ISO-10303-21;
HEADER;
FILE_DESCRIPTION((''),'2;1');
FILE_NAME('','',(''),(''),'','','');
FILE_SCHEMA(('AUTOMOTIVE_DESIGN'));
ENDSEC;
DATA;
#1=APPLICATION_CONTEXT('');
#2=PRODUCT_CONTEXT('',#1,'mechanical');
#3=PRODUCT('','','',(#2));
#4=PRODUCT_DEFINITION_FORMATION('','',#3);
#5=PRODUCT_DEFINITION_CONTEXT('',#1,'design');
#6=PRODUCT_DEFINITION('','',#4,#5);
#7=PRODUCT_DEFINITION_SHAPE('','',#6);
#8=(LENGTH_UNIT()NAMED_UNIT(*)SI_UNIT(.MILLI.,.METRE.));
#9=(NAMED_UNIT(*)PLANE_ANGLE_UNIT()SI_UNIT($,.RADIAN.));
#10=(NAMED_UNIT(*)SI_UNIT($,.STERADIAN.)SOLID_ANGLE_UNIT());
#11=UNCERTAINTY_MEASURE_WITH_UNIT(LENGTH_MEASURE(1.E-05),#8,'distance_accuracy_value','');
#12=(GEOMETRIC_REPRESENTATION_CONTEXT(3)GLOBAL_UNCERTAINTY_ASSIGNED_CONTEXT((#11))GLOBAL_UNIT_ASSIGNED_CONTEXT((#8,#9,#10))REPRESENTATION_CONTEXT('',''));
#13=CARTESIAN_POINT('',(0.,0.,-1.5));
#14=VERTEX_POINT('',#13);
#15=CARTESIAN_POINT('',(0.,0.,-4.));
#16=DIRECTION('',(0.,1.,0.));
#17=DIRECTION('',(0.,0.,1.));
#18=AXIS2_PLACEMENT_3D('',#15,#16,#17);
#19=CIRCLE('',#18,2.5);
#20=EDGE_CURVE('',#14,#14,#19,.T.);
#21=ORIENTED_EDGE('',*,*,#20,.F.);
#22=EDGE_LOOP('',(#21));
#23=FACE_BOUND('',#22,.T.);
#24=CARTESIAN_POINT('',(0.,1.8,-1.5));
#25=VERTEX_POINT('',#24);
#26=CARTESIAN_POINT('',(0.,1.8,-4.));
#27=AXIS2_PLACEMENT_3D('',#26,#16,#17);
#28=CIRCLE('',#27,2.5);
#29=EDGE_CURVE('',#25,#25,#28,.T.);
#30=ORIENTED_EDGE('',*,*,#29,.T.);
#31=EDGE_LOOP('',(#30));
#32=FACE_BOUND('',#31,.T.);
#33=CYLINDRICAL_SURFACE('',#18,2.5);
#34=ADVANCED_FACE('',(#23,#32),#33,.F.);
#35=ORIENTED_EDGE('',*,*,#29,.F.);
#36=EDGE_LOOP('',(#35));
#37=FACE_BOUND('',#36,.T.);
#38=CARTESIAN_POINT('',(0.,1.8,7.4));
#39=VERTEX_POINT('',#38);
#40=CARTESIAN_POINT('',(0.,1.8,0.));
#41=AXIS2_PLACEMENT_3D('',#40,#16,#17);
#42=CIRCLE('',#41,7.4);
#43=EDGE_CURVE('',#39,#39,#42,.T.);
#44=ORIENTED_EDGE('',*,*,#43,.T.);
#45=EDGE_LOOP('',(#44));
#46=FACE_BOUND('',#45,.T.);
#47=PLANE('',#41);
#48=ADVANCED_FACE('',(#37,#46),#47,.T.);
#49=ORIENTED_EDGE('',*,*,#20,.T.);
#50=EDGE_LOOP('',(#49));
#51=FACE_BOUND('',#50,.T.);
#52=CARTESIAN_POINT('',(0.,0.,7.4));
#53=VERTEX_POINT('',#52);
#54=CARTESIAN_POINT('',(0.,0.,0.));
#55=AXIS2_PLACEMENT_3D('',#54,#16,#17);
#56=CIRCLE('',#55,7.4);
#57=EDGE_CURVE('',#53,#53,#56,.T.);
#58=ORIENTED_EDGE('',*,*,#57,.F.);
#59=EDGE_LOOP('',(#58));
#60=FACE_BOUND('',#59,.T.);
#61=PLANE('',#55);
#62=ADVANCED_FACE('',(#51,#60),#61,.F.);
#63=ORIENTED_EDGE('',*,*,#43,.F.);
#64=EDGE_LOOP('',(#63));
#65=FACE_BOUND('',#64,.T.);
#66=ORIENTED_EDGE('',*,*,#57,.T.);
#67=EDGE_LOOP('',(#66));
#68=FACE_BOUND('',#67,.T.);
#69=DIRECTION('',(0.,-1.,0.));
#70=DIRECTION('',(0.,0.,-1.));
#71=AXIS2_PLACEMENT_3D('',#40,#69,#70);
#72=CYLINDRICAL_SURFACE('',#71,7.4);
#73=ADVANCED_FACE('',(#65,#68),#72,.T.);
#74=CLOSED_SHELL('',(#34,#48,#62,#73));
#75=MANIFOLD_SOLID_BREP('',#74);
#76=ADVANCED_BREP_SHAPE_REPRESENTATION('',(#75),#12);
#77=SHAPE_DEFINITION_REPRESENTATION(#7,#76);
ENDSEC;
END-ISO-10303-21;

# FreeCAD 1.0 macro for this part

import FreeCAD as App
import Part
import Sketcher
from FreeCAD import Vector
Q = App.Units.Quantity

doc = App.newDocument("Part")
params = doc.addObject("Spreadsheet::Sheet", "Params")
for row, (alias, value) in enumerate([
    ("sketch1_diameter", "14.8 mm"),
    ("pad1_length", "1.8 mm"),
    ("sketch2_diameter", "5 mm"),
    ("pocket1_length", "1.8 mm"),
], start=1):
    params.set(f"A{row}", alias)
    params.set(f"B{row}", "=" + value)
    params.setAlias(f"B{row}", alias)

body = doc.addObject("PartDesign::Body", "Body")

# Sketch on XZ plane
sketch1 = body.newObject("Sketcher::SketchObject", "Sketch")
sketch1.AttachmentSupport = (doc.getObject("XZ_Plane"), [""])
sketch1.MapMode = "FlatFace"
sketch1.addGeometry(Part.Circle(Vector(0, 0, 0), Vector(0, 0, 1), 7), False)
sketch1.addConstraint(Sketcher.Constraint("Coincident", 0, 3, -1, 1))
sketch1.addConstraint(Sketcher.Constraint("Diameter", 0, Q("14.8 mm")))
sketch1.setExpression("Constraints[1]", "Params.sketch1_diameter")
pad1 = body.newObject("PartDesign::Pad", "Pad")
pad1.Profile = sketch1
pad1.setExpression("Length", "Params.pad1_length")
pad1.Reversed = True

# Sketch on XZ plane
sketch2 = body.newObject("Sketcher::SketchObject", "Sketch001")
sketch2.AttachmentSupport = (doc.getObject("XZ_Plane"), [""])
sketch2.MapMode = "FlatFace"
sketch2.AttachmentOffset = App.Placement(Vector(0, 0, -1.8), App.Rotation())
sketch2.addGeometry(Part.Circle(Vector(0, -4, 0), Vector(0, 0, 1), 2.5), False)
sketch2.addConstraint(Sketcher.Constraint("PointOnObject", 0, 3, -2))
sketch2.addConstraint(Sketcher.Constraint("Diameter", 0, Q("5 mm")))
sketch2.addConstraint(Sketcher.Constraint("DistanceY", 0, 3, -1, 1, Q("4 mm")))
sketch2.setExpression("Constraints[1]", "Params.sketch2_diameter")
pocket1 = body.newObject("PartDesign::Pocket", "Pocket")
pocket1.Profile = sketch2
pocket1.setExpression("Length", "Params.pocket1_length")
pocket1.Reversed = True

doc.recompute()
